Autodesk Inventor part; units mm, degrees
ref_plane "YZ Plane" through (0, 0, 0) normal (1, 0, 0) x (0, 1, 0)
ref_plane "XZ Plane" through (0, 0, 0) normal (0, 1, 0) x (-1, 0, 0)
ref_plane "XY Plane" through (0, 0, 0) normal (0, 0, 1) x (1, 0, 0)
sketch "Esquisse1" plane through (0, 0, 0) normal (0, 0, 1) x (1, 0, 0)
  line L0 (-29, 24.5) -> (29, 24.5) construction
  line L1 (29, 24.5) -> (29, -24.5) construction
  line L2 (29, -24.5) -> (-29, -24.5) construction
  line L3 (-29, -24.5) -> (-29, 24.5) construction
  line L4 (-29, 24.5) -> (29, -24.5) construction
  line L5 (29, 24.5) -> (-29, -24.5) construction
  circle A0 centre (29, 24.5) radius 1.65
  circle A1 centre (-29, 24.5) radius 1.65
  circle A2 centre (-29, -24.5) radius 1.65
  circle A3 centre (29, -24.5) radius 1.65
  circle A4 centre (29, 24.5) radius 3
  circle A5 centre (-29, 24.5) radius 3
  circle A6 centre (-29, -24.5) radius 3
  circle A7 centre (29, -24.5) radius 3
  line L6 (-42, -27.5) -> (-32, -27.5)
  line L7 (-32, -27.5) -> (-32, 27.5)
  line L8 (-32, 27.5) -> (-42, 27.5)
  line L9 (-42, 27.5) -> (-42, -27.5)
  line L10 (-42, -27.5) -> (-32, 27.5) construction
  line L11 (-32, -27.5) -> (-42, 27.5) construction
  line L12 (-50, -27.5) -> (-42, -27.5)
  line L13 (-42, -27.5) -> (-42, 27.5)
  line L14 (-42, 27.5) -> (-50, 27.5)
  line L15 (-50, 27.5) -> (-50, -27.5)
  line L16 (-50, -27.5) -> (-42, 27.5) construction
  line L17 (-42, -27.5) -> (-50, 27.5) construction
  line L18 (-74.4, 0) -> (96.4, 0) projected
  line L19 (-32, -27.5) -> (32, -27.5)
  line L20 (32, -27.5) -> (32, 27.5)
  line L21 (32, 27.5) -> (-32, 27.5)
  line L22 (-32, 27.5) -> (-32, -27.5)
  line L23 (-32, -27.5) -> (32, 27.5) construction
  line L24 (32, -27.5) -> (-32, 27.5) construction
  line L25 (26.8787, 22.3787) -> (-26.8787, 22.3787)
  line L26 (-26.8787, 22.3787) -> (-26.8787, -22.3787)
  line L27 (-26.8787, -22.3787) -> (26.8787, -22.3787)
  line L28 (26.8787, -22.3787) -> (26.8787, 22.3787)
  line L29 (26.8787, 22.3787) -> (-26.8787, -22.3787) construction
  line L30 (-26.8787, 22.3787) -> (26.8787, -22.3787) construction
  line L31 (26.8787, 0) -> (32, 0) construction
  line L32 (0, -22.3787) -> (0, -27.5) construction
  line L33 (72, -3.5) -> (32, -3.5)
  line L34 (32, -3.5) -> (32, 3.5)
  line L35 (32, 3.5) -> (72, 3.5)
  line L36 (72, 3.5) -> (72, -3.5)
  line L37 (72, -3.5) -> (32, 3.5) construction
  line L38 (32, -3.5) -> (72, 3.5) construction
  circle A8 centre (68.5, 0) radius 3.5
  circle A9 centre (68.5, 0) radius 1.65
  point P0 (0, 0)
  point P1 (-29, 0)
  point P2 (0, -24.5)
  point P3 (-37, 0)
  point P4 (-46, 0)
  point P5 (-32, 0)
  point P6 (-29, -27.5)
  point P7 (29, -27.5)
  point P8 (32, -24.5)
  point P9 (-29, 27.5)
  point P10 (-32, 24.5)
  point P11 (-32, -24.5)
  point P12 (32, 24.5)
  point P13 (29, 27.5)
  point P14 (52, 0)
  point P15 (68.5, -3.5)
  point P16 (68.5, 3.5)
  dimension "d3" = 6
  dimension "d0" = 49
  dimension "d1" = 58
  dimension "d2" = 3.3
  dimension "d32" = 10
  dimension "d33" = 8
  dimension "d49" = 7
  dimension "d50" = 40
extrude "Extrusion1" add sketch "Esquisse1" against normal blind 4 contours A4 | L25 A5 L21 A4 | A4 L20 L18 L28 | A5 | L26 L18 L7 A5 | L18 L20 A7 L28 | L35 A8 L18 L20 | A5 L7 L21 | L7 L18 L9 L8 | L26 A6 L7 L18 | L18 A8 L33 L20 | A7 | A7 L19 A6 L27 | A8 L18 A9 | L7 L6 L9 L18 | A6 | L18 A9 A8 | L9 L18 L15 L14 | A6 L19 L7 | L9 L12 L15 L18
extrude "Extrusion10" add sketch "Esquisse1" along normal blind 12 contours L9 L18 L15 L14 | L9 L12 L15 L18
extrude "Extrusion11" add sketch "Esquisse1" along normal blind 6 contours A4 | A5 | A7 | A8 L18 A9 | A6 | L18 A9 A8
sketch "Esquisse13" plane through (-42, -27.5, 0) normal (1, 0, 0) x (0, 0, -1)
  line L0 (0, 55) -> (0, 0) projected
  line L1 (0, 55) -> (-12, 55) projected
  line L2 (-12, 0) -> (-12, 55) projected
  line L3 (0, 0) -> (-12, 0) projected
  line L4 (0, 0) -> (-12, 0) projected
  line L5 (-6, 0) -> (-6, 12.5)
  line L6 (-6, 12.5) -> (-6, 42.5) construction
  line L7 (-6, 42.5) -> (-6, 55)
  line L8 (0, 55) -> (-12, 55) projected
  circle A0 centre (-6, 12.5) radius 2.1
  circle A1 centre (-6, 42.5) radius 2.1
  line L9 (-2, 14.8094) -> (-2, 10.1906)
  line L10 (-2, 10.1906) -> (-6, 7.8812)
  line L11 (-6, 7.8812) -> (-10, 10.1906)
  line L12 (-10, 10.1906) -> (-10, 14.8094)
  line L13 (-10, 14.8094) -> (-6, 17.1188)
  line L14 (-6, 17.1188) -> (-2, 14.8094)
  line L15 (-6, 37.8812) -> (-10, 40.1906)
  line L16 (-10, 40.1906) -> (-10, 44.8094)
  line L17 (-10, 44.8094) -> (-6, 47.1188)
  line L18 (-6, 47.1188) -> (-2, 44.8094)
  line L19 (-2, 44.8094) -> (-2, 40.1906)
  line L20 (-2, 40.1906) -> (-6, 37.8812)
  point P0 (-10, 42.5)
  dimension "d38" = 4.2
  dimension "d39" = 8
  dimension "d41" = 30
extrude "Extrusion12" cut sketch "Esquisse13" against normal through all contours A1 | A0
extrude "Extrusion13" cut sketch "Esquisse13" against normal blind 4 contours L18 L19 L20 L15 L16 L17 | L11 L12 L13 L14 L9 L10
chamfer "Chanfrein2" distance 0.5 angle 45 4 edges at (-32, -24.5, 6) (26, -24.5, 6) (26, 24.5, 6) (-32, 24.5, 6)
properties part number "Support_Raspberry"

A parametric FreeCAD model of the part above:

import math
import FreeCAD as App
import Part
import Sketcher
from FreeCAD import Vector
Q = App.Units.Quantity


def edges_at(feature, points):
    """Names of the edges that pass closest to the given points."""
    edges = feature.Shape.Edges
    near = lambda p: min(range(len(edges)), key=lambda i: edges[i].distToShape(Part.Vertex(*p))[0])
    return sorted({f"Edge{near(p) + 1}" for p in points})

doc = App.newDocument("Part")
params = doc.addObject("Spreadsheet::Sheet", "Params")
for row, (alias, value) in enumerate([
    ("sketch1_radius", "3 mm"),
    ("sketch1_diameter", "3.3 mm"),
    ("sketch1_radius2", "3.5 mm"),
    ("sketch1_width", "79 mm"),
    ("sketch1_width2", "36.5 mm"),
    ("pad1_length", "4 mm"),
    ("sketch2_width", "8 mm"),
    ("sketch2_height", "55 mm"),
    ("pad2_length", "12 mm"),
    ("sketch3_diameter", "6 mm"),
    ("sketch3_diameter2", "7 mm"),
    ("sketch3_diameter3", "3.3 mm"),
    ("pad3_length", "6 mm"),
    ("sketch4_diameter", "4.2 mm"),
    ("sketch5_diameter", "4.2 mm"),
    ("pocket2_length", "4 mm"),
    ("chamfer_size", "0.5 mm"),
], start=1):
    params.set(f"A{row}", alias)
    params.set(f"B{row}", "=" + value)
    params.setAlias(f"B{row}", alias)

body = doc.addObject("PartDesign::Body", "Body")

sketch1 = body.newObject("Sketcher::SketchObject", "Sketch")
sketch1.AttachmentSupport = (doc.getObject("XY_Plane"), [""])
sketch1.MapMode = "FlatFace"
sketch1.addGeometry(Part.ArcOfCircle(Part.Circle(Vector(29, 24.5, 0), Vector(0, 0, 1), 3), math.radians(0), math.radians(90)), False)
sketch1.addGeometry(Part.LineSegment(Vector(29, 27.5, 0), Vector(-50, 27.5, 0)), False)
sketch1.addGeometry(Part.LineSegment(Vector(-50, 27.5, 0), Vector(-50, -27.5, 0)), False)
sketch1.addGeometry(Part.LineSegment(Vector(-50, -27.5, 0), Vector(29, -27.5, 0)), False)
sketch1.addGeometry(Part.ArcOfCircle(Part.Circle(Vector(29, -24.5, 0), Vector(0, 0, 1), 3), math.radians(-90), math.radians(0)), False)
sketch1.addGeometry(Part.LineSegment(Vector(32, -24.5, 0), Vector(32, -3.5, 0)), False)
sketch1.addGeometry(Part.LineSegment(Vector(32, -3.5, 0), Vector(68.5, -3.5, 0)), False)
sketch1.addGeometry(Part.ArcOfCircle(Part.Circle(Vector(68.5, 0, 0), Vector(0, 0, 1), 3.5), math.radians(-90), math.radians(90)), False)
sketch1.addGeometry(Part.LineSegment(Vector(68.5, 3.5, 0), Vector(32, 3.5, 0)), False)
sketch1.addGeometry(Part.LineSegment(Vector(32, 3.5, 0), Vector(32, 24.5, 0)), False)
sketch1.addGeometry(Part.Circle(Vector(29, 24.5, 0), Vector(0, 0, 1), 1.6), False)
sketch1.addGeometry(Part.LineSegment(Vector(-26.9, 22.4, 0), Vector(26.9, 22.4, 0)), False)
sketch1.addGeometry(Part.LineSegment(Vector(26.9, 22.4, 0), Vector(26.9, -22.4, 0)), False)
sketch1.addGeometry(Part.LineSegment(Vector(26.9, -22.4, 0), Vector(-26.9, -22.4, 0)), False)
sketch1.addGeometry(Part.LineSegment(Vector(-26.9, -22.4, 0), Vector(-26.9, 22.4, 0)), False)
sketch1.addGeometry(Part.Circle(Vector(-29, 24.5, 0), Vector(0, 0, 1), 1.6), False)
sketch1.addGeometry(Part.Circle(Vector(68.5, 0, 0), Vector(0, 0, 1), 1.6), False)
sketch1.addGeometry(Part.Circle(Vector(29, -24.5, 0), Vector(0, 0, 1), 1.6), False)
sketch1.addGeometry(Part.Circle(Vector(-29, -24.5, 0), Vector(0, 0, 1), 1.6), False)
sketch1.addConstraint(Sketcher.Constraint("Tangent", 0, 2, 1, 1))
sketch1.addConstraint(Sketcher.Constraint("Coincident", 1, 2, 2, 1))
sketch1.addConstraint(Sketcher.Constraint("Coincident", 2, 2, 3, 1))
sketch1.addConstraint(Sketcher.Constraint("Tangent", 3, 2, 4, 1))
sketch1.addConstraint(Sketcher.Constraint("Tangent", 4, 2, 5, 1))
sketch1.addConstraint(Sketcher.Constraint("Coincident", 5, 2, 6, 1))
sketch1.addConstraint(Sketcher.Constraint("Tangent", 6, 2, 7, 1))
sketch1.addConstraint(Sketcher.Constraint("Tangent", 7, 2, 8, 1))
sketch1.addConstraint(Sketcher.Constraint("Coincident", 8, 2, 9, 1))
sketch1.addConstraint(Sketcher.Constraint("Tangent", 9, 2, 0, 1))
sketch1.addConstraint(Sketcher.Constraint("Coincident", 11, 2, 12, 1))
sketch1.addConstraint(Sketcher.Constraint("Coincident", 12, 2, 13, 1))
sketch1.addConstraint(Sketcher.Constraint("Coincident", 13, 2, 14, 1))
sketch1.addConstraint(Sketcher.Constraint("Coincident", 14, 2, 11, 1))
sketch1.addConstraint(Sketcher.Constraint("Horizontal", 1))
sketch1.addConstraint(Sketcher.Constraint("Vertical", 2))
sketch1.addConstraint(Sketcher.Constraint("Horizontal", 3))
sketch1.addConstraint(Sketcher.Constraint("Vertical", 5))
sketch1.addConstraint(Sketcher.Constraint("Horizontal", 6))
sketch1.addConstraint(Sketcher.Constraint("Horizontal", 8))
sketch1.addConstraint(Sketcher.Constraint("Vertical", 9))
sketch1.addConstraint(Sketcher.Constraint("Horizontal", 11))
sketch1.addConstraint(Sketcher.Constraint("Vertical", 12))
sketch1.addConstraint(Sketcher.Constraint("Horizontal", 13))
sketch1.addConstraint(Sketcher.Constraint("Vertical", 14))
sketch1.addConstraint(Sketcher.Constraint("Coincident", 10, 3, 0, 3))
sketch1.addConstraint(Sketcher.Constraint("Coincident", 16, 3, 7, 3))
sketch1.addConstraint(Sketcher.Constraint("Coincident", 17, 3, 4, 3))
sketch1.addConstraint(Sketcher.Constraint("Equal", 0, 4))
sketch1.addConstraint(Sketcher.Constraint("Equal", 10, 15))
sketch1.addConstraint(Sketcher.Constraint("Equal", 15, 16))
sketch1.addConstraint(Sketcher.Constraint("Equal", 16, 17))
sketch1.addConstraint(Sketcher.Constraint("Equal", 17, 18))
sketch1.addConstraint(Sketcher.Constraint("Symmetric", 4, 3, 15, 3, -1, 1))
sketch1.addConstraint(Sketcher.Constraint("Symmetric", 0, 3, 18, 3, -1, 1))
sketch1.addConstraint(Sketcher.Constraint("Symmetric", 11, 2, 13, 2, -1, 1))
sketch1.addConstraint(Sketcher.Constraint("Symmetric", 0, 3, 15, 3, -2))
sketch1.addConstraint(Sketcher.Constraint("PointOnObject", 7, 3, -1))
sketch1.addConstraint(Sketcher.Constraint("Radius", 0, Q("3 mm")))
sketch1.addConstraint(Sketcher.Constraint("Diameter", 10, Q("3.3 mm")))
sketch1.addConstraint(Sketcher.Constraint("Radius", 7, Q("3.5 mm")))
sketch1.addConstraint(Sketcher.Constraint("DistanceY", 4, 3, 0, 3, Q("49 mm")))
sketch1.addConstraint(Sketcher.Constraint("DistanceX", 15, 3, 0, 3, Q("58 mm")))
sketch1.addConstraint(Sketcher.Constraint("DistanceX", 1, 2, 1, 1, Q("79 mm")))
sketch1.addConstraint(Sketcher.Constraint("DistanceX", 6, 1, 6, 2, Q("36.5 mm")))
sketch1.addConstraint(Sketcher.Constraint("DistanceX", 11, 1, 11, 2, Q("53.7574 mm")))
sketch1.addConstraint(Sketcher.Constraint("DistanceY", 12, 2, 12, 1, Q("44.7574 mm")))
sketch1.setExpression("Constraints[38]", "Params.sketch1_radius")
sketch1.setExpression("Constraints[39]", "Params.sketch1_diameter")
sketch1.setExpression("Constraints[40]", "Params.sketch1_radius2")
sketch1.setExpression("Constraints[43]", "Params.sketch1_width")
sketch1.setExpression("Constraints[44]", "Params.sketch1_width2")
pad1 = body.newObject("PartDesign::Pad", "Pad")
pad1.Profile = sketch1
pad1.setExpression("Length", "Params.pad1_length")
pad1.Reversed = True

sketch2 = body.newObject("Sketcher::SketchObject", "Sketch001")
sketch2.AttachmentSupport = (doc.getObject("XY_Plane"), [""])
sketch2.MapMode = "FlatFace"
sketch2.addGeometry(Part.LineSegment(Vector(-42, 28, 0), Vector(-50, 28, 0)), False)
sketch2.addGeometry(Part.LineSegment(Vector(-50, 28, 0), Vector(-50, -28, 0)), False)
sketch2.addGeometry(Part.LineSegment(Vector(-50, -28, 0), Vector(-42, -28, 0)), False)
sketch2.addGeometry(Part.LineSegment(Vector(-42, -28, 0), Vector(-42, 28, 0)), False)
sketch2.addConstraint(Sketcher.Constraint("Coincident", 0, 2, 1, 1))
sketch2.addConstraint(Sketcher.Constraint("Coincident", 1, 2, 2, 1))
sketch2.addConstraint(Sketcher.Constraint("Coincident", 2, 2, 3, 1))
sketch2.addConstraint(Sketcher.Constraint("Coincident", 3, 2, 0, 1))
sketch2.addConstraint(Sketcher.Constraint("Horizontal", 0))
sketch2.addConstraint(Sketcher.Constraint("Vertical", 1))
sketch2.addConstraint(Sketcher.Constraint("Horizontal", 2))
sketch2.addConstraint(Sketcher.Constraint("Vertical", 3))
sketch2.addConstraint(Sketcher.Constraint("DistanceX", 0, 2, 0, 1, Q("8 mm")))
sketch2.addConstraint(Sketcher.Constraint("DistanceY", 1, 2, 1, 1, Q("55 mm")))
sketch2.addConstraint(Sketcher.Constraint("DistanceX", 0, 2, -1, 1, Q("50 mm")))
sketch2.addConstraint(Sketcher.Constraint("DistanceY", -1, 1, 0, 2, Q("27.5 mm")))
sketch2.setExpression("Constraints[8]", "Params.sketch2_width")
sketch2.setExpression("Constraints[9]", "Params.sketch2_height")
pad2 = body.newObject("PartDesign::Pad", "Pad001")
pad2.Profile = sketch2
pad2.setExpression("Length", "Params.pad2_length")

sketch3 = body.newObject("Sketcher::SketchObject", "Sketch002")
sketch3.AttachmentSupport = (doc.getObject("XY_Plane"), [""])
sketch3.MapMode = "FlatFace"
sketch3.addGeometry(Part.Circle(Vector(29, 24.5, 0), Vector(0, 0, 1), 3), False)
sketch3.addGeometry(Part.Circle(Vector(29, 24.5, 0), Vector(0, 0, 1), 1.6), False)
sketch3.addGeometry(Part.Circle(Vector(-29, 24.5, 0), Vector(0, 0, 1), 3), False)
sketch3.addGeometry(Part.Circle(Vector(-29, 24.5, 0), Vector(0, 0, 1), 1.6), False)
sketch3.addGeometry(Part.Circle(Vector(29, -24.5, 0), Vector(0, 0, 1), 3), False)
sketch3.addGeometry(Part.Circle(Vector(29, -24.5, 0), Vector(0, 0, 1), 1.6), False)
sketch3.addGeometry(Part.Circle(Vector(68.5, 0, 0), Vector(0, 0, 1), 3.5), False)
sketch3.addGeometry(Part.Circle(Vector(68.5, 0, 0), Vector(0, 0, 1), 1.6), False)
sketch3.addGeometry(Part.Circle(Vector(-29, -24.5, 0), Vector(0, 0, 1), 3), False)
sketch3.addGeometry(Part.Circle(Vector(-29, -24.5, 0), Vector(0, 0, 1), 1.6), False)
sketch3.addConstraint(Sketcher.Constraint("Coincident", 1, 3, 0, 3))
sketch3.addConstraint(Sketcher.Constraint("Coincident", 3, 3, 2, 3))
sketch3.addConstraint(Sketcher.Constraint("Coincident", 5, 3, 4, 3))
sketch3.addConstraint(Sketcher.Constraint("Coincident", 7, 3, 6, 3))
sketch3.addConstraint(Sketcher.Constraint("Coincident", 9, 3, 8, 3))
sketch3.addConstraint(Sketcher.Constraint("Equal", 0, 2))
sketch3.addConstraint(Sketcher.Constraint("Equal", 1, 3))
sketch3.addConstraint(Sketcher.Constraint("Equal", 2, 4))
sketch3.addConstraint(Sketcher.Constraint("Equal", 3, 5))
sketch3.addConstraint(Sketcher.Constraint("Equal", 5, 7))
sketch3.addConstraint(Sketcher.Constraint("Equal", 4, 8))
sketch3.addConstraint(Sketcher.Constraint("Equal", 7, 9))
sketch3.addConstraint(Sketcher.Constraint("Symmetric", 2, 3, 4, 3, -1, 1))
sketch3.addConstraint(Sketcher.Constraint("Symmetric", 0, 3, 8, 3, -1, 1))
sketch3.addConstraint(Sketcher.Constraint("Symmetric", 0, 3, 2, 3, -2))
sketch3.addConstraint(Sketcher.Constraint("PointOnObject", 6, 3, -1))
sketch3.addConstraint(Sketcher.Constraint("Diameter", 0, Q("6 mm")))
sketch3.addConstraint(Sketcher.Constraint("Diameter", 6, Q("7 mm")))
sketch3.addConstraint(Sketcher.Constraint("Diameter", 1, Q("3.3 mm")))
sketch3.addConstraint(Sketcher.Constraint("DistanceX", 2, 3, 0, 3, Q("58 mm")))
sketch3.addConstraint(Sketcher.Constraint("DistanceY", 4, 3, 0, 3, Q("49 mm")))
sketch3.addConstraint(Sketcher.Constraint("DistanceX", -1, 1, 6, 3, Q("68.5 mm")))
sketch3.setExpression("Constraints[16]", "Params.sketch3_diameter")
sketch3.setExpression("Constraints[17]", "Params.sketch3_diameter2")
sketch3.setExpression("Constraints[18]", "Params.sketch3_diameter3")
pad3 = body.newObject("PartDesign::Pad", "Pad002")
pad3.Profile = sketch3
pad3.setExpression("Length", "Params.pad3_length")

sketch4 = body.newObject("Sketcher::SketchObject", "Sketch003")
sketch4.AttachmentSupport = (doc.getObject("YZ_Plane"), [""])
sketch4.MapMode = "FlatFace"
sketch4.AttachmentOffset = App.Placement(Vector(0, 0, -42), App.Rotation())
sketch4.addGeometry(Part.Circle(Vector(15, 6, 0), Vector(0, 0, 1), 2.1), False)
sketch4.addGeometry(Part.Circle(Vector(-15, 6, 0), Vector(0, 0, 1), 2.1), False)
sketch4.addConstraint(Sketcher.Constraint("Equal", 0, 1))
sketch4.addConstraint(Sketcher.Constraint("Symmetric", 0, 3, 1, 3, -2))
sketch4.addConstraint(Sketcher.Constraint("Diameter", 0, Q("4.2 mm")))
sketch4.addConstraint(Sketcher.Constraint("DistanceX", 1, 3, 0, 3, Q("30 mm")))
sketch4.addConstraint(Sketcher.Constraint("DistanceY", -1, 1, 0, 3, Q("6 mm")))
sketch4.setExpression("Constraints[2]", "Params.sketch4_diameter")
pocket1 = body.newObject("PartDesign::Pocket", "Pocket")
pocket1.Profile = sketch4
pocket1.Type = "ThroughAll"

sketch5 = body.newObject("Sketcher::SketchObject", "Sketch004")
sketch5.AttachmentSupport = (doc.getObject("YZ_Plane"), [""])
sketch5.MapMode = "FlatFace"
sketch5.AttachmentOffset = App.Placement(Vector(0, 0, -42), App.Rotation())
sketch5.addGeometry(Part.LineSegment(Vector(17.3, 2, 0), Vector(19.6, 6, 0)), False)
sketch5.addGeometry(Part.LineSegment(Vector(19.6, 6, 0), Vector(17.3, 10, 0)), False)
sketch5.addGeometry(Part.LineSegment(Vector(17.3, 10, 0), Vector(12.7, 10, 0)), False)
sketch5.addGeometry(Part.LineSegment(Vector(12.7, 10, 0), Vector(10.4, 6, 0)), False)
sketch5.addGeometry(Part.LineSegment(Vector(10.4, 6, 0), Vector(12.7, 2, 0)), False)
sketch5.addGeometry(Part.LineSegment(Vector(12.7, 2, 0), Vector(17.3, 2, 0)), False)
sketch5.addGeometry(Part.Circle(Vector(15, 6, 0), Vector(0, 0, 1), 2.1), False)
sketch5.addGeometry(Part.LineSegment(Vector(-17.3, 10, 0), Vector(-19.6, 6, 0)), False)
sketch5.addGeometry(Part.LineSegment(Vector(-19.6, 6, 0), Vector(-17.3, 2, 0)), False)
sketch5.addGeometry(Part.LineSegment(Vector(-17.3, 2, 0), Vector(-12.7, 2, 0)), False)
sketch5.addGeometry(Part.LineSegment(Vector(-12.7, 2, 0), Vector(-10.4, 6, 0)), False)
sketch5.addGeometry(Part.LineSegment(Vector(-10.4, 6, 0), Vector(-12.7, 10, 0)), False)
sketch5.addGeometry(Part.LineSegment(Vector(-12.7, 10, 0), Vector(-17.3, 10, 0)), False)
sketch5.addGeometry(Part.Circle(Vector(-15, 6, 0), Vector(0, 0, 1), 2.1), False)
sketch5.addConstraint(Sketcher.Constraint("Coincident", 0, 2, 1, 1))
sketch5.addConstraint(Sketcher.Constraint("Coincident", 1, 2, 2, 1))
sketch5.addConstraint(Sketcher.Constraint("Coincident", 2, 2, 3, 1))
sketch5.addConstraint(Sketcher.Constraint("Coincident", 3, 2, 4, 1))
sketch5.addConstraint(Sketcher.Constraint("Coincident", 4, 2, 5, 1))
sketch5.addConstraint(Sketcher.Constraint("Coincident", 5, 2, 0, 1))
sketch5.addConstraint(Sketcher.Constraint("Coincident", 7, 2, 8, 1))
sketch5.addConstraint(Sketcher.Constraint("Coincident", 8, 2, 9, 1))
sketch5.addConstraint(Sketcher.Constraint("Coincident", 9, 2, 10, 1))
sketch5.addConstraint(Sketcher.Constraint("Coincident", 10, 2, 11, 1))
sketch5.addConstraint(Sketcher.Constraint("Coincident", 11, 2, 12, 1))
sketch5.addConstraint(Sketcher.Constraint("Coincident", 12, 2, 7, 1))
sketch5.addConstraint(Sketcher.Constraint("Horizontal", 2))
sketch5.addConstraint(Sketcher.Constraint("Horizontal", 5))
sketch5.addConstraint(Sketcher.Constraint("Horizontal", 9))
sketch5.addConstraint(Sketcher.Constraint("Horizontal", 12))
sketch5.addConstraint(Sketcher.Constraint("Equal", 6, 13))
sketch5.addConstraint(Sketcher.Constraint("Symmetric", 6, 3, 13, 3, -2))
sketch5.addConstraint(Sketcher.Constraint("Symmetric", 0, 2, 7, 2, -2))
sketch5.addConstraint(Sketcher.Constraint("Symmetric", 5, 2, 8, 2, -2))
sketch5.addConstraint(Sketcher.Constraint("Symmetric", 3, 2, 10, 2, -2))
sketch5.addConstraint(Sketcher.Constraint("Symmetric", 2, 2, 11, 2, -2))
sketch5.addConstraint(Sketcher.Constraint("Parallel", 0, 3))
sketch5.addConstraint(Sketcher.Constraint("Parallel", 1, 4))
sketch5.addConstraint(Sketcher.Constraint("Parallel", 3, 7))
sketch5.addConstraint(Sketcher.Constraint("Parallel", 4, 8))
sketch5.addConstraint(Sketcher.Constraint("Parallel", 7, 10))
sketch5.addConstraint(Sketcher.Constraint("Horizontal", 13, 3, 0, 2))
sketch5.addConstraint(Sketcher.Constraint("Horizontal", 0, 2, 3, 2))
sketch5.addConstraint(Sketcher.Constraint("Vertical", 2, 2, 4, 2))
sketch5.addConstraint(Sketcher.Constraint("Diameter", 6, Q("4.2 mm")))
sketch5.addConstraint(Sketcher.Constraint("DistanceX", 13, 3, 6, 3, Q("30 mm")))
sketch5.addConstraint(Sketcher.Constraint("DistanceY", 4, 2, 2, 2, Q("8 mm")))
sketch5.addConstraint(Sketcher.Constraint("DistanceX", 7, 2, 3, 2, Q("30 mm")))
sketch5.addConstraint(Sketcher.Constraint("Angle", 0, Q("60 deg")))
sketch5.addConstraint(Sketcher.Constraint("DistanceY", -1, 1, 6, 3, Q("6 mm")))
sketch5.addConstraint(Sketcher.Constraint("DistanceX", 2, 2, 2, 1, Q("4.6188 mm")))
sketch5.setExpression("Constraints[30]", "Params.sketch5_diameter")
pocket2 = body.newObject("PartDesign::Pocket", "Pocket001")
pocket2.Profile = sketch5
pocket2.setExpression("Length", "Params.pocket2_length")
doc.recompute()

chamfer = body.newObject("PartDesign::Chamfer", "Chamfer")
chamfer.Base = (pocket2, edges_at(pocket2, [
    (-32, -24.5, 6),
    (26, -24.5, 6),
    (26, 24.5, 6),
    (-32, 24.5, 6),
]))
chamfer.setExpression("Size", "Params.chamfer_size")

doc.recompute()
